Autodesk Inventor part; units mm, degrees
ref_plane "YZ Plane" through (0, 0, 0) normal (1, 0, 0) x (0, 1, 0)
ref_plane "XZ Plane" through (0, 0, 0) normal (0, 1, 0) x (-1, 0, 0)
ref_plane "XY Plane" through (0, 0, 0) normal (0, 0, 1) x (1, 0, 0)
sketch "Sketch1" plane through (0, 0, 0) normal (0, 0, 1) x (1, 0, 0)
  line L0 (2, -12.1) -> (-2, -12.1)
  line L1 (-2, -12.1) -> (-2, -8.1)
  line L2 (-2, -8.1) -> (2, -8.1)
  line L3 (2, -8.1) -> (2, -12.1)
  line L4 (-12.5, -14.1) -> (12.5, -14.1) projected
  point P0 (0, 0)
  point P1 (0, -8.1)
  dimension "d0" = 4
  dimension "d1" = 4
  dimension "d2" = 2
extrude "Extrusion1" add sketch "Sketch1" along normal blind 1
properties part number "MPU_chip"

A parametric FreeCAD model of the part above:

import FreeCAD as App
import Part
import Sketcher

V = App.Vector


def add_polygon(sketch, points):
    """Adds a closed chain of lines whose ends are joined by coincident constraints."""
    first, n = sketch.GeometryCount, len(points)
    for a, b in zip(points, points[1:] + points[:1]):
        sketch.addGeometry(Part.LineSegment(App.Vector(*a, 0), App.Vector(*b, 0)), False)
    for i in range(n):
        sketch.addConstraint(Sketcher.Constraint("Coincident", first + i, 2, first + (i + 1) % n, 1))

doc = App.newDocument("Part")
params = doc.addObject("Spreadsheet::Sheet", "Params")
for row, (alias, value) in enumerate([
    ("sketch1_width", "4 mm"),
    ("pad1_length", "1 mm"),
], start=1):
    params.set(f"A{row}", alias)
    params.set(f"B{row}", "=" + value)
    params.setAlias(f"B{row}", alias)

body = doc.addObject("PartDesign::Body", "Body")

# Sketch on XY plane
sketch1 = body.newObject("Sketcher::SketchObject", "Sketch")
sketch1.AttachmentSupport = (doc.getObject("XY_Plane"), [""])
sketch1.MapMode = "FlatFace"
add_polygon(sketch1, [(-2, -12.1), (2, -12.1), (2, -8.1), (-2, -8.1)])  # lines 0-3
sketch1.addConstraint([
    Sketcher.Constraint("Horizontal", 0),
    Sketcher.Constraint("Vertical", 1),
    Sketcher.Constraint("Horizontal", 2),
    Sketcher.Constraint("Vertical", 3),
    Sketcher.Constraint("Equal", 2, 1),
    Sketcher.Constraint("DistanceX", 0, 1, 0, 2, 4.0),
    Sketcher.Constraint("DistanceX", -1, 1, 0, 2, 2.0),
    Sketcher.Constraint("DistanceY", 0, 2, -1, 1, 12.1),
])
sketch1.setExpression("Constraints[9]", "Params.sketch1_width")
pad1 = body.newObject("PartDesign::Pad", "Pad")
pad1.Profile = sketch1
pad1.setExpression("Length", "Params.pad1_length")

doc.recompute()
